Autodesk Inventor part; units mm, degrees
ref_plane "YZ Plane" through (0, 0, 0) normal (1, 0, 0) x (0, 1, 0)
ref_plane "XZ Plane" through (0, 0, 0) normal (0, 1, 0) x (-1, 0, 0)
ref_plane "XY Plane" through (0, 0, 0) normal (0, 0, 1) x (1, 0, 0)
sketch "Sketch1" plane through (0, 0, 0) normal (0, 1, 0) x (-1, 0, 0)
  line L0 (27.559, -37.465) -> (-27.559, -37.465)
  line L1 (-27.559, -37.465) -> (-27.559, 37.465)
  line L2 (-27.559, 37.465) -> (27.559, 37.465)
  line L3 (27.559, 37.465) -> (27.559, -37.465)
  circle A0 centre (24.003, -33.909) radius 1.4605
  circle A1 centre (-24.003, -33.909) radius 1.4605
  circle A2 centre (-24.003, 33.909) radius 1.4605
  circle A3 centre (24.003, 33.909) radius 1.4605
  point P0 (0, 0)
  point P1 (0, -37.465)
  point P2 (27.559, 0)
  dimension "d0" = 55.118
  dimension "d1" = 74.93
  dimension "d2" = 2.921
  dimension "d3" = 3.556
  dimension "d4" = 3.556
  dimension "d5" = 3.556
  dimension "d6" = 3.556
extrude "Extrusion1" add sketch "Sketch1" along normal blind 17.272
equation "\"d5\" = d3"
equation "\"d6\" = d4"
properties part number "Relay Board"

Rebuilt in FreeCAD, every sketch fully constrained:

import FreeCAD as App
import Part
import Sketcher
Q = App.Units.Quantity


def add_polygon(sketch, points):
    """Adds a closed chain of lines whose ends are joined by coincident constraints."""
    first, n = sketch.GeometryCount, len(points)
    for a, b in zip(points, points[1:] + points[:1]):
        sketch.addGeometry(Part.LineSegment(App.Vector(*a, 0), App.Vector(*b, 0)), False)
    for i in range(n):
        sketch.addConstraint(Sketcher.Constraint("Coincident", first + i, 2, first + (i + 1) % n, 1))

doc = App.newDocument("Part")
body = doc.addObject("PartDesign::Body", "Body")

# Sketch on XZ plane
sketch1 = body.newObject("Sketcher::SketchObject", "Sketch")
sketch1.AttachmentSupport = (doc.getObject("XZ_Plane"), [""])
sketch1.MapMode = "FlatFace"
add_polygon(sketch1, [(27.6, -37.5), (-27.6, -37.5), (-27.6, 37.5), (27.6, 37.5)])  # lines 0-3
sketch1.addGeometry(Part.Circle(App.Vector(24, -33.9, 0), App.Vector(0, 0, 1), 1.5), False)  # 4
sketch1.addGeometry(Part.Circle(App.Vector(-24, -33.9, 0), App.Vector(0, 0, 1), 1.5), False)  # 5
sketch1.addGeometry(Part.Circle(App.Vector(24, 33.9, 0), App.Vector(0, 0, 1), 1.5), False)  # 6
sketch1.addGeometry(Part.Circle(App.Vector(-24, 33.9, 0), App.Vector(0, 0, 1), 1.5), False)  # 7
sketch1.addConstraint(Sketcher.Constraint("Horizontal", 0))
sketch1.addConstraint(Sketcher.Constraint("Vertical", 1))
sketch1.addConstraint(Sketcher.Constraint("Horizontal", 2))
sketch1.addConstraint(Sketcher.Constraint("Vertical", 3))
sketch1.addConstraint(Sketcher.Constraint("Equal", 4, 5))
sketch1.addConstraint(Sketcher.Constraint("Equal", 5, 6))
sketch1.addConstraint(Sketcher.Constraint("Equal", 6, 7))
sketch1.addConstraint(Sketcher.Constraint("Symmetric", 5, 3, 6, 3, -1, 1))
sketch1.addConstraint(Sketcher.Constraint("Symmetric", 4, 3, 7, 3, -1, 1))
sketch1.addConstraint(Sketcher.Constraint("Symmetric", 0, 2, 2, 2, -1, 1))
sketch1.addConstraint(Sketcher.Constraint("Symmetric", 4, 3, 5, 3, -2))
sketch1.addConstraint(Sketcher.Constraint("Diameter", 4, Q("0.115 in")))
sketch1.addConstraint(Sketcher.Constraint("DistanceX", 0, 2, 0, 1, Q("2.17 in")))
sketch1.addConstraint(Sketcher.Constraint("DistanceY", 1, 1, 1, 2, Q("2.95 in")))
sketch1.addConstraint(Sketcher.Constraint("DistanceX", 0, 2, 5, 3, Q("0.14 in")))
sketch1.addConstraint(Sketcher.Constraint("DistanceY", 0, 2, 5, 3, Q("0.14 in")))
pad1 = body.newObject("PartDesign::Pad", "Pad")
pad1.Profile = sketch1
pad1.Length = Q("0.68 in")
pad1.Reversed = True

doc.recompute()
